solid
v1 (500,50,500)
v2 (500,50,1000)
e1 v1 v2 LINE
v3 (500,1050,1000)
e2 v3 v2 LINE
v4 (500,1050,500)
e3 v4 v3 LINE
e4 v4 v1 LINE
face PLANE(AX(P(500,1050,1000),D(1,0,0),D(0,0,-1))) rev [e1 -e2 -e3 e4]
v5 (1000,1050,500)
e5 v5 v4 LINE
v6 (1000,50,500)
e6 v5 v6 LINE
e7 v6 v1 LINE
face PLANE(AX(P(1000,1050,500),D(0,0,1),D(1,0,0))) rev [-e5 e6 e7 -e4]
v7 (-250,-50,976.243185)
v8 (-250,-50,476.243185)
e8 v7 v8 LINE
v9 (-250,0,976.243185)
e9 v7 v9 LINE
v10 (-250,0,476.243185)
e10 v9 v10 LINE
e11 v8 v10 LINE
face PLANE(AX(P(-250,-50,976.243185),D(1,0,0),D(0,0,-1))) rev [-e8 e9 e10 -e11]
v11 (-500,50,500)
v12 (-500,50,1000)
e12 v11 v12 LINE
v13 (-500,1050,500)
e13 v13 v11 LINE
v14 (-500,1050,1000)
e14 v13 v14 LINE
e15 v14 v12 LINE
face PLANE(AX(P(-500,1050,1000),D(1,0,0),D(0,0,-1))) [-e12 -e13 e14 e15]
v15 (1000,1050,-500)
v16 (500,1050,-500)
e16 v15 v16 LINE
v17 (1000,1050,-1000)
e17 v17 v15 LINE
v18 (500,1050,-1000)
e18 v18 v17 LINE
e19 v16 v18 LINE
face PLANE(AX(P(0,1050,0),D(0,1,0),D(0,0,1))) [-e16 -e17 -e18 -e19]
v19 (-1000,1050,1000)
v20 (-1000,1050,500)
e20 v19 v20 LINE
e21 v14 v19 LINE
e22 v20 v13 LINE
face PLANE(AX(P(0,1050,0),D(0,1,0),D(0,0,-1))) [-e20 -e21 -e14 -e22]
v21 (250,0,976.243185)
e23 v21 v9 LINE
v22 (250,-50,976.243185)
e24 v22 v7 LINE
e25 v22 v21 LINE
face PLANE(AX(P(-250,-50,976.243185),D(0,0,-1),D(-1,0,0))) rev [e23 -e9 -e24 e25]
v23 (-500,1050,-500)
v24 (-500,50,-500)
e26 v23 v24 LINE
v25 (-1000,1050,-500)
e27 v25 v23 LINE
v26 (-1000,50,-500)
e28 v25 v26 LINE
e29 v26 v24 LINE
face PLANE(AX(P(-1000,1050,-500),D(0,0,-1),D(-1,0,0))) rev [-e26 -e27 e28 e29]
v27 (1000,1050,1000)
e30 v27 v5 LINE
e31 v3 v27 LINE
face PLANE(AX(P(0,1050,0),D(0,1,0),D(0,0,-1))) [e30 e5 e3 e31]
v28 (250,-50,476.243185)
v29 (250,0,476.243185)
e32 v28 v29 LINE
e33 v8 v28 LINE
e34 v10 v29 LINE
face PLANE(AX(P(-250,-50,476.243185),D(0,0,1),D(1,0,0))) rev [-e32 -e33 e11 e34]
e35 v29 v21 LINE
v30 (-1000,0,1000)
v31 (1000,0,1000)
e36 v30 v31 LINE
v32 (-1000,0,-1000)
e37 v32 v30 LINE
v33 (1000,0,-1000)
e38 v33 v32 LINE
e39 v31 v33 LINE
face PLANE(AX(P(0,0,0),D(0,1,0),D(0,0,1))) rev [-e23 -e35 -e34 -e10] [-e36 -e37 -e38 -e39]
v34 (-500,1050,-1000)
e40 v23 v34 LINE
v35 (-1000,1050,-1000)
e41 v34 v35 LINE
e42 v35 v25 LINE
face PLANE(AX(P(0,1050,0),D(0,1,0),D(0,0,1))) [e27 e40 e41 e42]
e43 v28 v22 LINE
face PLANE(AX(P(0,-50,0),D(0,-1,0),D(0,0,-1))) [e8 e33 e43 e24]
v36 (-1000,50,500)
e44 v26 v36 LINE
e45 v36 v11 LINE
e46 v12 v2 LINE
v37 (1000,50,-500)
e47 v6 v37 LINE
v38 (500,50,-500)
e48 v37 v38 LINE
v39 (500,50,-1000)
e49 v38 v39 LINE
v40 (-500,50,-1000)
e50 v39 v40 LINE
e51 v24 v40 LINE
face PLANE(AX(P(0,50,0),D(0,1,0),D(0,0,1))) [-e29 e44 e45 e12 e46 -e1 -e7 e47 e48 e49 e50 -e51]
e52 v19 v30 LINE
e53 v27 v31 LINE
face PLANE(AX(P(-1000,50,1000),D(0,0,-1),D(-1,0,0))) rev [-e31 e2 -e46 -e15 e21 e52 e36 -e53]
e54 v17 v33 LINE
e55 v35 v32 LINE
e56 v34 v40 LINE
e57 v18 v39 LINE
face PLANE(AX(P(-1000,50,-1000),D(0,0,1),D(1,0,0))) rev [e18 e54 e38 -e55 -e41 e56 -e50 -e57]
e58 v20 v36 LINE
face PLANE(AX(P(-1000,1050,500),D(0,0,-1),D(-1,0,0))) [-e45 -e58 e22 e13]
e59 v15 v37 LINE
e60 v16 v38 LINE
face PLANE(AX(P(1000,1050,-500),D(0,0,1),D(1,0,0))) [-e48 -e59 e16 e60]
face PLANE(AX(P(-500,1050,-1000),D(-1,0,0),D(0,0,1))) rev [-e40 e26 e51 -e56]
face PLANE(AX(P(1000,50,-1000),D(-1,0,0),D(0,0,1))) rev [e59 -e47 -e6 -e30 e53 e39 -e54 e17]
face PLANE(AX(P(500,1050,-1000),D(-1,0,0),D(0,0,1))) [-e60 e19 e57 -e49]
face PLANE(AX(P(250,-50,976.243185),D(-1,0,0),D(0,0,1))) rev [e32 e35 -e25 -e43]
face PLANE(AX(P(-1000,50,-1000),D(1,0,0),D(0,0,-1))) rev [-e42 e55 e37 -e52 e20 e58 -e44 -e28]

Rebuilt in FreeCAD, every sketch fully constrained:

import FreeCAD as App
import Part
import Sketcher
from FreeCAD import Vector
Q = App.Units.Quantity


def add_polygon(sketch, points):
    """Adds a closed chain of lines whose ends are joined by coincident constraints."""
    first, n = sketch.GeometryCount, len(points)
    for a, b in zip(points, points[1:] + points[:1]):
        sketch.addGeometry(Part.LineSegment(App.Vector(*a, 0), App.Vector(*b, 0)), False)
    for i in range(n):
        sketch.addConstraint(Sketcher.Constraint("Coincident", first + i, 2, first + (i + 1) % n, 1))

doc = App.newDocument("Part")
body = doc.addObject("PartDesign::Body", "Body")

# Sketch on XZ plane
sketch1 = body.newObject("Sketcher::SketchObject", "Sketch")
sketch1.AttachmentSupport = (doc.getObject("XZ_Plane"), [""])
sketch1.MapMode = "FlatFace"
add_polygon(sketch1, [(-1000, -1000), (-1000, 1000), (1000, 1000), (1000, -1000)])  # lines 0-3
sketch1.addConstraint(Sketcher.Constraint("Vertical", 0))
sketch1.addConstraint(Sketcher.Constraint("Horizontal", 1))
sketch1.addConstraint(Sketcher.Constraint("Vertical", 2))
sketch1.addConstraint(Sketcher.Constraint("Horizontal", 3))
sketch1.addConstraint(Sketcher.Constraint("Symmetric", 0, 2, 2, 2, -1, 1))
sketch1.addConstraint(Sketcher.Constraint("Equal", 3, 0))
sketch1.addConstraint(Sketcher.Constraint("DistanceX", 1, 1, 1, 2, Q("2000 mm")))
pad1 = body.newObject("PartDesign::Pad", "Pad")
pad1.Profile = sketch1
pad1.Length = 50
pad1.Reversed = True

# Sketch on XZ plane
sketch2 = body.newObject("Sketcher::SketchObject", "Sketch001")
sketch2.AttachmentSupport = (doc.getObject("XZ_Plane"), [""])
sketch2.MapMode = "FlatFace"
sketch2.AttachmentOffset = App.Placement(Vector(0, 0, -50), App.Rotation())
add_polygon(sketch2, [(-1000, -1000), (-1000, -500), (-500, -500), (-500, -1000)])  # lines 0-3
sketch2.addConstraint(Sketcher.Constraint("Vertical", 0))
sketch2.addConstraint(Sketcher.Constraint("Horizontal", 1))
sketch2.addConstraint(Sketcher.Constraint("Vertical", 2))
sketch2.addConstraint(Sketcher.Constraint("Horizontal", 3))
sketch2.addConstraint(Sketcher.Constraint("Equal", 3, 0))
sketch2.addConstraint(Sketcher.Constraint("DistanceX", 1, 1, 1, 2, Q("500 mm")))
sketch2.addConstraint(Sketcher.Constraint("DistanceX", 0, 2, -1, 1, Q("1000 mm")))
sketch2.addConstraint(Sketcher.Constraint("DistanceY", 0, 2, -1, 1, Q("500 mm")))
pad2 = body.newObject("PartDesign::Pad", "Pad001")
pad2.Profile = sketch2
pad2.Length = 1000
pad2.Reversed = True
doc.recompute()

mirrored = body.newObject("PartDesign::Mirrored", "Mirrored")
mirrored.Originals = [pad2]
mirrored.MirrorPlane = (doc.getObject("XY_Plane"), [""])
body.Tip = mirrored
doc.recompute()

mirrored2 = body.newObject("PartDesign::Mirrored", "Mirrored001")
mirrored2.Originals = [pad2]
mirrored2.MirrorPlane = (doc.getObject("XY_Plane"), [""])
body.Tip = mirrored2
doc.recompute()

mirrored3 = body.newObject("PartDesign::Mirrored", "Mirrored002")
mirrored3.Originals = [pad2]
mirrored3.MirrorPlane = (doc.getObject("YZ_Plane"), [""])
body.Tip = mirrored3

# Sketch on XZ plane
sketch3 = body.newObject("Sketcher::SketchObject", "Sketch002")
sketch3.AttachmentSupport = (doc.getObject("XZ_Plane"), [""])
sketch3.MapMode = "FlatFace"
sketch3.AttachmentOffset = App.Placement(Vector(0, 0, -50), App.Rotation())
add_polygon(sketch3, [(1000, 1000), (1000, 500), (500, 500), (500, 1000)])  # lines 0-3
sketch3.addConstraint(Sketcher.Constraint("Vertical", 0))
sketch3.addConstraint(Sketcher.Constraint("Horizontal", 1))
sketch3.addConstraint(Sketcher.Constraint("Vertical", 2))
sketch3.addConstraint(Sketcher.Constraint("Horizontal", 3))
sketch3.addConstraint(Sketcher.Constraint("Equal", 3, 0))
sketch3.addConstraint(Sketcher.Constraint("DistanceX", 1, 2, 1, 1, Q("500 mm")))
sketch3.addConstraint(Sketcher.Constraint("DistanceX", -1, 1, 0, 2, Q("1000 mm")))
sketch3.addConstraint(Sketcher.Constraint("DistanceY", -1, 1, 0, 2, Q("500 mm")))
pad3 = body.newObject("PartDesign::Pad", "Pad002")
pad3.Profile = sketch3
pad3.Length = 1000
pad3.Reversed = True

# Sketch on XZ plane
sketch4 = body.newObject("Sketcher::SketchObject", "Sketch003")
sketch4.AttachmentSupport = (doc.getObject("XZ_Plane"), [""])
sketch4.MapMode = "FlatFace"
add_polygon(sketch4, [(-250, 976.243185), (-250, 476.243185), (250, 476.243185), (250, 976.243185)])  # lines 0-3
sketch4.addConstraint(Sketcher.Constraint("Vertical", 0))
sketch4.addConstraint(Sketcher.Constraint("Horizontal", 1))
sketch4.addConstraint(Sketcher.Constraint("Vertical", 2))
sketch4.addConstraint(Sketcher.Constraint("Horizontal", 3))
sketch4.addConstraint(Sketcher.Constraint("Equal", 3, 0))
sketch4.addConstraint(Sketcher.Constraint("DistanceX", 1, 1, 1, 2, Q("500 mm")))
sketch4.addConstraint(Sketcher.Constraint("DistanceX", 0, 2, -1, 1, Q("250 mm")))
sketch4.addConstraint(Sketcher.Constraint("DistanceY", -1, 1, 0, 2, Q("476.243185 mm")))
pad4 = body.newObject("PartDesign::Pad", "Pad003")
pad4.Profile = sketch4
pad4.Length = 50

doc.recompute()
